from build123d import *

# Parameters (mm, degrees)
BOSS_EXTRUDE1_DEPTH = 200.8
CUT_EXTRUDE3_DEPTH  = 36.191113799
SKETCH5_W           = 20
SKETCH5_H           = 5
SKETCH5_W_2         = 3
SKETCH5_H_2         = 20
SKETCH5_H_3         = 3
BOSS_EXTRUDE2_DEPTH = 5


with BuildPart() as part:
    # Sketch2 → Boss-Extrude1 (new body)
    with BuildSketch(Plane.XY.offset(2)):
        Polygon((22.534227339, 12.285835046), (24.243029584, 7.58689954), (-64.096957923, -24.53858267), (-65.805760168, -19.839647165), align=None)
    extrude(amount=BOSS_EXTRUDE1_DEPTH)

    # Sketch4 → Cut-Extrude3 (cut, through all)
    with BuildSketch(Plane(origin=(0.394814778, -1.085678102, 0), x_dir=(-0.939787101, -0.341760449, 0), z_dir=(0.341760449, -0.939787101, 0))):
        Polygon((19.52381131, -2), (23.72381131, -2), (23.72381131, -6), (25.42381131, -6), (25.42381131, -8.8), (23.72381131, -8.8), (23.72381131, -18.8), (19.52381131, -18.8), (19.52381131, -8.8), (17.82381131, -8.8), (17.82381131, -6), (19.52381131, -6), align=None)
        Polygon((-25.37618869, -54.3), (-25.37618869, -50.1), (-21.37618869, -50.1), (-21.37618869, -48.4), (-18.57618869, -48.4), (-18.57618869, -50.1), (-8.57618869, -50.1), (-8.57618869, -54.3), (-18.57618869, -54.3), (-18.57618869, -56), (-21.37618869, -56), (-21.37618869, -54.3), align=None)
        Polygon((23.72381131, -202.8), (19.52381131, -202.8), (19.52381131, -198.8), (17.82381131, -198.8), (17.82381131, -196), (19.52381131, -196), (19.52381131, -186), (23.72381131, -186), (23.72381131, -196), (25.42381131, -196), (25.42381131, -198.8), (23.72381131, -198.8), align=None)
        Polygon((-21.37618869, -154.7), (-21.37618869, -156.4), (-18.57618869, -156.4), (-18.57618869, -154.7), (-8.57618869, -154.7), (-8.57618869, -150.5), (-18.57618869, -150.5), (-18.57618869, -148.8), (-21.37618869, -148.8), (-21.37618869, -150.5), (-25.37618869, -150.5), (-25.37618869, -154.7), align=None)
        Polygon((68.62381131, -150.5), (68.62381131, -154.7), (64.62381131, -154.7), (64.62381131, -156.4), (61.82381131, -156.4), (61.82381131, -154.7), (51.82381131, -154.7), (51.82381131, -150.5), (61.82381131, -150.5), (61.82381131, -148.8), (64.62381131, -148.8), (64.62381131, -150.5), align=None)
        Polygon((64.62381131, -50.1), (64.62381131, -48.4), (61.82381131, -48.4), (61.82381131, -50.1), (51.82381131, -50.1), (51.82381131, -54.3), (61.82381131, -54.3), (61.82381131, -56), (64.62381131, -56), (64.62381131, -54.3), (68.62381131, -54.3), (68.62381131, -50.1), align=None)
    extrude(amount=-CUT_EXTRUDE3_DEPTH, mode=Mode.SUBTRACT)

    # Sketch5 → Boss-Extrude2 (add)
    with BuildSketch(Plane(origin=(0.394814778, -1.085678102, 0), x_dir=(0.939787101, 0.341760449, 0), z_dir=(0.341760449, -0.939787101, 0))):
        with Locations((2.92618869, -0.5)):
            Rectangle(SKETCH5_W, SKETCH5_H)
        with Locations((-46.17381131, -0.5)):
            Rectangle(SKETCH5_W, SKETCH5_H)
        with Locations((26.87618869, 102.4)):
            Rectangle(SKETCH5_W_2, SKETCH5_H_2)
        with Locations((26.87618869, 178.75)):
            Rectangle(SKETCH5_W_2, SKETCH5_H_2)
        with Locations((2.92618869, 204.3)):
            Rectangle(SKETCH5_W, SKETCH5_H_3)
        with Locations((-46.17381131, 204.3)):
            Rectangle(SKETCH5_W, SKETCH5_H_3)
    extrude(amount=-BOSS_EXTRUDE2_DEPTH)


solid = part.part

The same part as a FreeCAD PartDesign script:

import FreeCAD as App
import Part
import Sketcher
from FreeCAD import Vector
Q = App.Units.Quantity


def add_polygon(sketch, points):
    """Adds a closed chain of lines whose ends are joined by coincident constraints."""
    first, n = sketch.GeometryCount, len(points)
    for a, b in zip(points, points[1:] + points[:1]):
        sketch.addGeometry(Part.LineSegment(App.Vector(*a, 0), App.Vector(*b, 0)), False)
    for i in range(n):
        sketch.addConstraint(Sketcher.Constraint("Coincident", first + i, 2, first + (i + 1) % n, 1))

doc = App.newDocument("Part")
body = doc.addObject("PartDesign::Body", "Body")

# Sketch on XY plane
sketch1 = body.newObject("Sketcher::SketchObject", "Sketch")
sketch1.AttachmentSupport = (doc.getObject("XY_Plane"), [""])
sketch1.MapMode = "FlatFace"
sketch1.AttachmentOffset = App.Placement(Vector(0, 0, 2), App.Rotation())
add_polygon(sketch1, [(24.2, 7.6), (22.5, 12.3), (-65.8, -19.8), (-64.1, -24.5)])  # lines 0-3
sketch1.addConstraint([
    Sketcher.Constraint("Perpendicular", 0, 1),
    Sketcher.Constraint("Perpendicular", 1, 2),
    Sketcher.Constraint("Perpendicular", 2, 3),
    Sketcher.Constraint("Distance", 0, Q("5 mm")),
    Sketcher.Constraint("Distance", 1, Q("94 mm")),
    Sketcher.Constraint("DistanceY", -1, 1, 3, 2, Q("7.5869 mm")),
    Sketcher.Constraint("DistanceX", 1, 2, -1, 1, Q("65.80576 mm")),
    Sketcher.Constraint("DistanceX", -1, 1, 3, 2, Q("24.24303 mm")),
])
pad1 = body.newObject("PartDesign::Pad", "Pad")
pad1.Profile = sketch1
pad1.Length = 200.8

# Sketch on an angled plane
sketch2 = body.newObject("Sketcher::SketchObject", "Sketch001")
sketch2.Placement = App.Placement(Vector(0.394815, -1.085678, 0), App.Rotation(Vector(-0.939787101, -0.341760449, 0), Vector(0, 0, -1), Vector(0.341760449, -0.939787101, 0), "ZXY"))
add_polygon(sketch2, [(23.7, -2), (19.5, -2), (19.5, -6), (17.8, -6), (17.8, -8.8), (19.5, -8.8), (19.5, -18.8), (23.7, -18.8), (23.7, -8.8), (25.4, -8.8), (25.4, -6), (23.7, -6)])  # lines 0-11
add_polygon(sketch2, [(-25.4, -50.1), (-25.4, -54.3), (-21.4, -54.3), (-21.4, -56), (-18.6, -56), (-18.6, -54.3), (-8.6, -54.3), (-8.6, -50.1), (-18.6, -50.1), (-18.6, -48.4), (-21.4, -48.4), (-21.4, -50.1)])  # lines 12-23
add_polygon(sketch2, [(19.5, -202.8), (23.7, -202.8), (23.7, -198.8), (25.4, -198.8), (25.4, -196), (23.7, -196), (23.7, -186), (19.5, -186), (19.5, -196), (17.8, -196), (17.8, -198.8), (19.5, -198.8)])  # lines 24-35
add_polygon(sketch2, [(-21.4, -154.7), (-21.4, -156.4), (-18.6, -156.4), (-18.6, -154.7), (-8.6, -154.7), (-8.6, -150.5), (-18.6, -150.5), (-18.6, -148.8), (-21.4, -148.8), (-21.4, -150.5), (-25.4, -150.5), (-25.4, -154.7)])  # lines 36-47
add_polygon(sketch2, [(68.6, -154.7), (68.6, -150.5), (64.6, -150.5), (64.6, -148.8), (61.8, -148.8), (61.8, -150.5), (51.8, -150.5), (51.8, -154.7), (61.8, -154.7), (61.8, -156.4), (64.6, -156.4), (64.6, -154.7)])  # lines 48-59
add_polygon(sketch2, [(64.6, -50.1), (64.6, -48.4), (61.8, -48.4), (61.8, -50.1), (51.8, -50.1), (51.8, -54.3), (61.8, -54.3), (61.8, -56), (64.6, -56), (64.6, -54.3), (68.6, -54.3), (68.6, -50.1)])  # lines 60-71
sketch2.addConstraint([
    Sketcher.Constraint("Horizontal", 0),
    Sketcher.Constraint("Vertical", 1),
    Sketcher.Constraint("Horizontal", 2),
    Sketcher.Constraint("Vertical", 3),
    Sketcher.Constraint("Horizontal", 4),
    Sketcher.Constraint("Vertical", 5),
    Sketcher.Constraint("Horizontal", 6),
    Sketcher.Constraint("Vertical", 7),
    Sketcher.Constraint("Horizontal", 8),
    Sketcher.Constraint("Vertical", 9),
    Sketcher.Constraint("Horizontal", 10),
    Sketcher.Constraint("Vertical", 11),
    Sketcher.Constraint("Vertical", 12),
    Sketcher.Constraint("Horizontal", 13),
    Sketcher.Constraint("Vertical", 14),
    Sketcher.Constraint("Horizontal", 15),
    Sketcher.Constraint("Vertical", 16),
    Sketcher.Constraint("Horizontal", 17),
    Sketcher.Constraint("Vertical", 18),
    Sketcher.Constraint("Horizontal", 19),
    Sketcher.Constraint("Vertical", 20),
    Sketcher.Constraint("Horizontal", 21),
    Sketcher.Constraint("Vertical", 22),
    Sketcher.Constraint("Horizontal", 23),
    Sketcher.Constraint("Horizontal", 24),
    Sketcher.Constraint("Vertical", 25),
    Sketcher.Constraint("Horizontal", 26),
    Sketcher.Constraint("Vertical", 27),
    Sketcher.Constraint("Horizontal", 28),
    Sketcher.Constraint("Vertical", 29),
    Sketcher.Constraint("Horizontal", 30),
    Sketcher.Constraint("Vertical", 31),
    Sketcher.Constraint("Horizontal", 32),
    Sketcher.Constraint("Vertical", 33),
    Sketcher.Constraint("Horizontal", 34),
    Sketcher.Constraint("Vertical", 35),
    Sketcher.Constraint("Vertical", 36),
    Sketcher.Constraint("Horizontal", 37),
    Sketcher.Constraint("Vertical", 38),
    Sketcher.Constraint("Horizontal", 39),
    Sketcher.Constraint("Vertical", 40),
    Sketcher.Constraint("Horizontal", 41),
    Sketcher.Constraint("Vertical", 42),
    Sketcher.Constraint("Horizontal", 43),
    Sketcher.Constraint("Vertical", 44),
    Sketcher.Constraint("Horizontal", 45),
    Sketcher.Constraint("Vertical", 46),
    Sketcher.Constraint("Horizontal", 47),
    Sketcher.Constraint("Vertical", 48),
    Sketcher.Constraint("Horizontal", 49),
    Sketcher.Constraint("Vertical", 50),
    Sketcher.Constraint("Horizontal", 51),
    Sketcher.Constraint("Vertical", 52),
    Sketcher.Constraint("Horizontal", 53),
    Sketcher.Constraint("Vertical", 54),
    Sketcher.Constraint("Horizontal", 55),
    Sketcher.Constraint("Vertical", 56),
    Sketcher.Constraint("Horizontal", 57),
    Sketcher.Constraint("Vertical", 58),
    Sketcher.Constraint("Horizontal", 59),
    Sketcher.Constraint("Vertical", 60),
    Sketcher.Constraint("Horizontal", 61),
    Sketcher.Constraint("Vertical", 62),
    Sketcher.Constraint("Horizontal", 63),
    Sketcher.Constraint("Vertical", 64),
    Sketcher.Constraint("Horizontal", 65),
    Sketcher.Constraint("Vertical", 66),
    Sketcher.Constraint("Horizontal", 67),
    Sketcher.Constraint("Vertical", 68),
    Sketcher.Constraint("Horizontal", 69),
    Sketcher.Constraint("Vertical", 70),
    Sketcher.Constraint("Horizontal", 71),
    Sketcher.Constraint("Horizontal", 4, 2, 7, 2),
    Sketcher.Constraint("Horizontal", 2, 2, 9, 2),
    Sketcher.Constraint("Horizontal", 13, 2, 16, 2),
    Sketcher.Constraint("Horizontal", 19, 2, 22, 2),
    Sketcher.Constraint("Horizontal", 28, 2, 31, 2),
    Sketcher.Constraint("Horizontal", 26, 2, 33, 2),
    Sketcher.Constraint("Horizontal", 41, 2, 44, 2),
    Sketcher.Constraint("Horizontal", 39, 2, 46, 2),
    Sketcher.Constraint("Horizontal", 45, 2, 48, 2),
    Sketcher.Constraint("Horizontal", 43, 2, 50, 2),
    Sketcher.Constraint("Horizontal", 49, 2, 52, 2),
    Sketcher.Constraint("Horizontal", 47, 2, 54, 2),
    Sketcher.Constraint("Horizontal", 37, 2, 56, 2),
    Sketcher.Constraint("Horizontal", 55, 2, 58, 2),
    Sketcher.Constraint("Horizontal", 21, 2, 60, 2),
    Sketcher.Constraint("Horizontal", 23, 2, 62, 2),
    Sketcher.Constraint("Horizontal", 17, 2, 64, 2),
    Sketcher.Constraint("Horizontal", 15, 2, 66, 2),
    Sketcher.Constraint("Horizontal", 65, 2, 68, 2),
    Sketcher.Constraint("Horizontal", 63, 2, 70, 2),
    Sketcher.Constraint("Vertical", 1, 2, 4, 2),
    Sketcher.Constraint("Vertical", 7, 2, 10, 2),
    Sketcher.Constraint("Vertical", 16, 2, 19, 2),
    Sketcher.Constraint("Vertical", 14, 2, 21, 2),
    Sketcher.Constraint("Vertical", 11, 2, 24, 2),
    Sketcher.Constraint("Vertical", 9, 2, 26, 2),
    Sketcher.Constraint("Vertical", 25, 2, 28, 2),
    Sketcher.Constraint("Vertical", 5, 2, 30, 2),
    Sketcher.Constraint("Vertical", 3, 2, 32, 2),
    Sketcher.Constraint("Vertical", 31, 2, 34, 2),
    Sketcher.Constraint("Vertical", 22, 2, 36, 2),
    Sketcher.Constraint("Vertical", 20, 2, 37, 2),
    Sketcher.Constraint("Vertical", 18, 2, 39, 2),
    Sketcher.Constraint("Vertical", 38, 2, 41, 2),
    Sketcher.Constraint("Vertical", 36, 2, 43, 2),
    Sketcher.Constraint("Vertical", 23, 2, 45, 2),
    Sketcher.Constraint("Vertical", 52, 2, 55, 2),
    Sketcher.Constraint("Vertical", 50, 2, 57, 2),
    Sketcher.Constraint("Vertical", 58, 2, 60, 2),
    Sketcher.Constraint("Vertical", 56, 2, 61, 2),
    Sketcher.Constraint("Vertical", 54, 2, 63, 2),
    Sketcher.Constraint("Vertical", 62, 2, 65, 2),
    Sketcher.Constraint("Vertical", 60, 2, 67, 2),
    Sketcher.Constraint("Vertical", 59, 2, 69, 2),
    Sketcher.Constraint("Equal", 4, 8),
    Sketcher.Constraint("Equal", 47, 49),
    Sketcher.Constraint("Equal", 43, 51),
    Sketcher.Constraint("Equal", 41, 53),
    Sketcher.Constraint("Equal", 71, 1),
    Sketcher.Constraint("Equal", 67, 3),
    Sketcher.Constraint("Equal", 65, 5),
    Sketcher.Constraint("Equal", 30, 12),
    Sketcher.Constraint("Equal", 34, 14),
    Sketcher.Constraint("Equal", 16, 20),
    Sketcher.Constraint("Equal", 11, 25),
    Sketcher.Constraint("Equal", 9, 27),
    Sketcher.Constraint("Equal", 7, 29),
    Sketcher.Constraint("Equal", 22, 36),
    Sketcher.Constraint("Equal", 18, 40),
    Sketcher.Constraint("Equal", 38, 42),
    Sketcher.Constraint("DistanceX", 13, 1, 13, 2, Q("4 mm")),
    Sketcher.Constraint("DistanceX", 17, 1, 17, 2, Q("10 mm")),
    Sketcher.Constraint("DistanceX", 0, 2, 0, 1, Q("4.2 mm")),
    Sketcher.Constraint("DistanceX", 2, 2, 2, 1, Q("1.7 mm")),
    Sketcher.Constraint("DistanceX", 15, 1, 15, 2, Q("2.8 mm")),
    Sketcher.Constraint("DistanceY", 0, 2, -1, 1, Q("2 mm")),
    Sketcher.Constraint("DistanceY", 14, 2, -1, 1, Q("56 mm")),
    Sketcher.Constraint("DistanceY", 27, 2, -1, 1, Q("196 mm")),
    Sketcher.Constraint("DistanceY", 36, 2, -1, 1, Q("156.4 mm")),
    Sketcher.Constraint("DistanceX", -1, 1, 0, 2, Q("19.523811 mm")),
    Sketcher.Constraint("DistanceX", 12, 2, -1, 1, Q("25.376189 mm")),
    Sketcher.Constraint("DistanceX", -1, 1, 48, 2, Q("68.623811 mm")),
])
pocket1 = body.newObject("PartDesign::Pocket", "Pocket")
pocket1.Profile = sketch2
pocket1.Type = "ThroughAll"

# Sketch on an angled plane
sketch3 = body.newObject("Sketcher::SketchObject", "Sketch002")
sketch3.Placement = App.Placement(Vector(0.394815, -1.085678, 0), App.Rotation(Vector(0.939787101, 0.341760449, 0), Vector(0, 0, 1), Vector(0.341760449, -0.939787101, 0), "ZXY"))
add_polygon(sketch3, [(-7.1, 2), (-7.1, -3), (12.9, -3), (12.9, 2)])  # lines 0-3
add_polygon(sketch3, [(-56.2, 2), (-56.2, -3), (-36.2, -3), (-36.2, 2)])  # lines 4-7
add_polygon(sketch3, [(25.4, 112.4), (25.4, 92.4), (28.4, 92.4), (28.4, 112.4)])  # lines 8-11
add_polygon(sketch3, [(25.4, 188.7), (25.4, 168.7), (28.4, 168.7), (28.4, 188.7)])  # lines 12-15
add_polygon(sketch3, [(-7.1, 205.8), (-7.1, 202.8), (12.9, 202.8), (12.9, 205.8)])  # lines 16-19
add_polygon(sketch3, [(-56.2, 205.8), (-56.2, 202.8), (-36.2, 202.8), (-36.2, 205.8)])  # lines 20-23
sketch3.addConstraint([
    Sketcher.Constraint("Vertical", 0),
    Sketcher.Constraint("Horizontal", 1),
    Sketcher.Constraint("Vertical", 2),
    Sketcher.Constraint("Horizontal", 3),
    Sketcher.Constraint("Vertical", 4),
    Sketcher.Constraint("Horizontal", 5),
    Sketcher.Constraint("Vertical", 6),
    Sketcher.Constraint("Horizontal", 7),
    Sketcher.Constraint("Vertical", 8),
    Sketcher.Constraint("Horizontal", 9),
    Sketcher.Constraint("Vertical", 10),
    Sketcher.Constraint("Horizontal", 11),
    Sketcher.Constraint("Vertical", 12),
    Sketcher.Constraint("Horizontal", 13),
    Sketcher.Constraint("Vertical", 14),
    Sketcher.Constraint("Horizontal", 15),
    Sketcher.Constraint("Vertical", 16),
    Sketcher.Constraint("Horizontal", 17),
    Sketcher.Constraint("Vertical", 18),
    Sketcher.Constraint("Horizontal", 19),
    Sketcher.Constraint("Vertical", 20),
    Sketcher.Constraint("Horizontal", 21),
    Sketcher.Constraint("Vertical", 22),
    Sketcher.Constraint("Horizontal", 23),
    Sketcher.Constraint("Horizontal", 1, 2, 4, 2),
    Sketcher.Constraint("Horizontal", 3, 2, 6, 2),
    Sketcher.Constraint("Horizontal", 17, 2, 20, 2),
    Sketcher.Constraint("Horizontal", 19, 2, 22, 2),
    Sketcher.Constraint("Vertical", 11, 2, 12, 2),
    Sketcher.Constraint("Vertical", 10, 2, 13, 2),
    Sketcher.Constraint("Vertical", 3, 2, 16, 2),
    Sketcher.Constraint("Vertical", 2, 2, 17, 2),
    Sketcher.Constraint("Vertical", 7, 2, 20, 2),
    Sketcher.Constraint("Vertical", 6, 2, 21, 2),
    Sketcher.Constraint("Equal", 3, 5),
    Sketcher.Constraint("Equal", 23, 8),
    Sketcher.Constraint("Equal", 10, 12),
    Sketcher.Constraint("Equal", 15, 16),
    Sketcher.Constraint("DistanceX", 1, 1, 1, 2, Q("20 mm")),
    Sketcher.Constraint("DistanceX", 9, 1, 9, 2, Q("3 mm")),
    Sketcher.Constraint("DistanceY", 0, 2, 0, 1, Q("5 mm")),
    Sketcher.Constraint("DistanceY", 0, 2, -1, 1, Q("3 mm")),
    Sketcher.Constraint("DistanceY", -1, 1, 8, 2, Q("92.4 mm")),
    Sketcher.Constraint("DistanceY", -1, 1, 16, 2, Q("202.8 mm")),
    Sketcher.Constraint("DistanceX", 4, 2, 0, 2, Q("49.1 mm")),
    Sketcher.Constraint("DistanceY", -1, 1, 12, 2, Q("168.75 mm")),
    Sketcher.Constraint("DistanceX", 2, 2, 8, 2, Q("12.45 mm")),
    Sketcher.Constraint("DistanceX", 0, 2, -1, 1, Q("7.073811 mm")),
])
pad2 = body.newObject("PartDesign::Pad", "Pad001")
pad2.Profile = sketch3
pad2.Length = 5
pad2.Reversed = True

doc.recompute()
